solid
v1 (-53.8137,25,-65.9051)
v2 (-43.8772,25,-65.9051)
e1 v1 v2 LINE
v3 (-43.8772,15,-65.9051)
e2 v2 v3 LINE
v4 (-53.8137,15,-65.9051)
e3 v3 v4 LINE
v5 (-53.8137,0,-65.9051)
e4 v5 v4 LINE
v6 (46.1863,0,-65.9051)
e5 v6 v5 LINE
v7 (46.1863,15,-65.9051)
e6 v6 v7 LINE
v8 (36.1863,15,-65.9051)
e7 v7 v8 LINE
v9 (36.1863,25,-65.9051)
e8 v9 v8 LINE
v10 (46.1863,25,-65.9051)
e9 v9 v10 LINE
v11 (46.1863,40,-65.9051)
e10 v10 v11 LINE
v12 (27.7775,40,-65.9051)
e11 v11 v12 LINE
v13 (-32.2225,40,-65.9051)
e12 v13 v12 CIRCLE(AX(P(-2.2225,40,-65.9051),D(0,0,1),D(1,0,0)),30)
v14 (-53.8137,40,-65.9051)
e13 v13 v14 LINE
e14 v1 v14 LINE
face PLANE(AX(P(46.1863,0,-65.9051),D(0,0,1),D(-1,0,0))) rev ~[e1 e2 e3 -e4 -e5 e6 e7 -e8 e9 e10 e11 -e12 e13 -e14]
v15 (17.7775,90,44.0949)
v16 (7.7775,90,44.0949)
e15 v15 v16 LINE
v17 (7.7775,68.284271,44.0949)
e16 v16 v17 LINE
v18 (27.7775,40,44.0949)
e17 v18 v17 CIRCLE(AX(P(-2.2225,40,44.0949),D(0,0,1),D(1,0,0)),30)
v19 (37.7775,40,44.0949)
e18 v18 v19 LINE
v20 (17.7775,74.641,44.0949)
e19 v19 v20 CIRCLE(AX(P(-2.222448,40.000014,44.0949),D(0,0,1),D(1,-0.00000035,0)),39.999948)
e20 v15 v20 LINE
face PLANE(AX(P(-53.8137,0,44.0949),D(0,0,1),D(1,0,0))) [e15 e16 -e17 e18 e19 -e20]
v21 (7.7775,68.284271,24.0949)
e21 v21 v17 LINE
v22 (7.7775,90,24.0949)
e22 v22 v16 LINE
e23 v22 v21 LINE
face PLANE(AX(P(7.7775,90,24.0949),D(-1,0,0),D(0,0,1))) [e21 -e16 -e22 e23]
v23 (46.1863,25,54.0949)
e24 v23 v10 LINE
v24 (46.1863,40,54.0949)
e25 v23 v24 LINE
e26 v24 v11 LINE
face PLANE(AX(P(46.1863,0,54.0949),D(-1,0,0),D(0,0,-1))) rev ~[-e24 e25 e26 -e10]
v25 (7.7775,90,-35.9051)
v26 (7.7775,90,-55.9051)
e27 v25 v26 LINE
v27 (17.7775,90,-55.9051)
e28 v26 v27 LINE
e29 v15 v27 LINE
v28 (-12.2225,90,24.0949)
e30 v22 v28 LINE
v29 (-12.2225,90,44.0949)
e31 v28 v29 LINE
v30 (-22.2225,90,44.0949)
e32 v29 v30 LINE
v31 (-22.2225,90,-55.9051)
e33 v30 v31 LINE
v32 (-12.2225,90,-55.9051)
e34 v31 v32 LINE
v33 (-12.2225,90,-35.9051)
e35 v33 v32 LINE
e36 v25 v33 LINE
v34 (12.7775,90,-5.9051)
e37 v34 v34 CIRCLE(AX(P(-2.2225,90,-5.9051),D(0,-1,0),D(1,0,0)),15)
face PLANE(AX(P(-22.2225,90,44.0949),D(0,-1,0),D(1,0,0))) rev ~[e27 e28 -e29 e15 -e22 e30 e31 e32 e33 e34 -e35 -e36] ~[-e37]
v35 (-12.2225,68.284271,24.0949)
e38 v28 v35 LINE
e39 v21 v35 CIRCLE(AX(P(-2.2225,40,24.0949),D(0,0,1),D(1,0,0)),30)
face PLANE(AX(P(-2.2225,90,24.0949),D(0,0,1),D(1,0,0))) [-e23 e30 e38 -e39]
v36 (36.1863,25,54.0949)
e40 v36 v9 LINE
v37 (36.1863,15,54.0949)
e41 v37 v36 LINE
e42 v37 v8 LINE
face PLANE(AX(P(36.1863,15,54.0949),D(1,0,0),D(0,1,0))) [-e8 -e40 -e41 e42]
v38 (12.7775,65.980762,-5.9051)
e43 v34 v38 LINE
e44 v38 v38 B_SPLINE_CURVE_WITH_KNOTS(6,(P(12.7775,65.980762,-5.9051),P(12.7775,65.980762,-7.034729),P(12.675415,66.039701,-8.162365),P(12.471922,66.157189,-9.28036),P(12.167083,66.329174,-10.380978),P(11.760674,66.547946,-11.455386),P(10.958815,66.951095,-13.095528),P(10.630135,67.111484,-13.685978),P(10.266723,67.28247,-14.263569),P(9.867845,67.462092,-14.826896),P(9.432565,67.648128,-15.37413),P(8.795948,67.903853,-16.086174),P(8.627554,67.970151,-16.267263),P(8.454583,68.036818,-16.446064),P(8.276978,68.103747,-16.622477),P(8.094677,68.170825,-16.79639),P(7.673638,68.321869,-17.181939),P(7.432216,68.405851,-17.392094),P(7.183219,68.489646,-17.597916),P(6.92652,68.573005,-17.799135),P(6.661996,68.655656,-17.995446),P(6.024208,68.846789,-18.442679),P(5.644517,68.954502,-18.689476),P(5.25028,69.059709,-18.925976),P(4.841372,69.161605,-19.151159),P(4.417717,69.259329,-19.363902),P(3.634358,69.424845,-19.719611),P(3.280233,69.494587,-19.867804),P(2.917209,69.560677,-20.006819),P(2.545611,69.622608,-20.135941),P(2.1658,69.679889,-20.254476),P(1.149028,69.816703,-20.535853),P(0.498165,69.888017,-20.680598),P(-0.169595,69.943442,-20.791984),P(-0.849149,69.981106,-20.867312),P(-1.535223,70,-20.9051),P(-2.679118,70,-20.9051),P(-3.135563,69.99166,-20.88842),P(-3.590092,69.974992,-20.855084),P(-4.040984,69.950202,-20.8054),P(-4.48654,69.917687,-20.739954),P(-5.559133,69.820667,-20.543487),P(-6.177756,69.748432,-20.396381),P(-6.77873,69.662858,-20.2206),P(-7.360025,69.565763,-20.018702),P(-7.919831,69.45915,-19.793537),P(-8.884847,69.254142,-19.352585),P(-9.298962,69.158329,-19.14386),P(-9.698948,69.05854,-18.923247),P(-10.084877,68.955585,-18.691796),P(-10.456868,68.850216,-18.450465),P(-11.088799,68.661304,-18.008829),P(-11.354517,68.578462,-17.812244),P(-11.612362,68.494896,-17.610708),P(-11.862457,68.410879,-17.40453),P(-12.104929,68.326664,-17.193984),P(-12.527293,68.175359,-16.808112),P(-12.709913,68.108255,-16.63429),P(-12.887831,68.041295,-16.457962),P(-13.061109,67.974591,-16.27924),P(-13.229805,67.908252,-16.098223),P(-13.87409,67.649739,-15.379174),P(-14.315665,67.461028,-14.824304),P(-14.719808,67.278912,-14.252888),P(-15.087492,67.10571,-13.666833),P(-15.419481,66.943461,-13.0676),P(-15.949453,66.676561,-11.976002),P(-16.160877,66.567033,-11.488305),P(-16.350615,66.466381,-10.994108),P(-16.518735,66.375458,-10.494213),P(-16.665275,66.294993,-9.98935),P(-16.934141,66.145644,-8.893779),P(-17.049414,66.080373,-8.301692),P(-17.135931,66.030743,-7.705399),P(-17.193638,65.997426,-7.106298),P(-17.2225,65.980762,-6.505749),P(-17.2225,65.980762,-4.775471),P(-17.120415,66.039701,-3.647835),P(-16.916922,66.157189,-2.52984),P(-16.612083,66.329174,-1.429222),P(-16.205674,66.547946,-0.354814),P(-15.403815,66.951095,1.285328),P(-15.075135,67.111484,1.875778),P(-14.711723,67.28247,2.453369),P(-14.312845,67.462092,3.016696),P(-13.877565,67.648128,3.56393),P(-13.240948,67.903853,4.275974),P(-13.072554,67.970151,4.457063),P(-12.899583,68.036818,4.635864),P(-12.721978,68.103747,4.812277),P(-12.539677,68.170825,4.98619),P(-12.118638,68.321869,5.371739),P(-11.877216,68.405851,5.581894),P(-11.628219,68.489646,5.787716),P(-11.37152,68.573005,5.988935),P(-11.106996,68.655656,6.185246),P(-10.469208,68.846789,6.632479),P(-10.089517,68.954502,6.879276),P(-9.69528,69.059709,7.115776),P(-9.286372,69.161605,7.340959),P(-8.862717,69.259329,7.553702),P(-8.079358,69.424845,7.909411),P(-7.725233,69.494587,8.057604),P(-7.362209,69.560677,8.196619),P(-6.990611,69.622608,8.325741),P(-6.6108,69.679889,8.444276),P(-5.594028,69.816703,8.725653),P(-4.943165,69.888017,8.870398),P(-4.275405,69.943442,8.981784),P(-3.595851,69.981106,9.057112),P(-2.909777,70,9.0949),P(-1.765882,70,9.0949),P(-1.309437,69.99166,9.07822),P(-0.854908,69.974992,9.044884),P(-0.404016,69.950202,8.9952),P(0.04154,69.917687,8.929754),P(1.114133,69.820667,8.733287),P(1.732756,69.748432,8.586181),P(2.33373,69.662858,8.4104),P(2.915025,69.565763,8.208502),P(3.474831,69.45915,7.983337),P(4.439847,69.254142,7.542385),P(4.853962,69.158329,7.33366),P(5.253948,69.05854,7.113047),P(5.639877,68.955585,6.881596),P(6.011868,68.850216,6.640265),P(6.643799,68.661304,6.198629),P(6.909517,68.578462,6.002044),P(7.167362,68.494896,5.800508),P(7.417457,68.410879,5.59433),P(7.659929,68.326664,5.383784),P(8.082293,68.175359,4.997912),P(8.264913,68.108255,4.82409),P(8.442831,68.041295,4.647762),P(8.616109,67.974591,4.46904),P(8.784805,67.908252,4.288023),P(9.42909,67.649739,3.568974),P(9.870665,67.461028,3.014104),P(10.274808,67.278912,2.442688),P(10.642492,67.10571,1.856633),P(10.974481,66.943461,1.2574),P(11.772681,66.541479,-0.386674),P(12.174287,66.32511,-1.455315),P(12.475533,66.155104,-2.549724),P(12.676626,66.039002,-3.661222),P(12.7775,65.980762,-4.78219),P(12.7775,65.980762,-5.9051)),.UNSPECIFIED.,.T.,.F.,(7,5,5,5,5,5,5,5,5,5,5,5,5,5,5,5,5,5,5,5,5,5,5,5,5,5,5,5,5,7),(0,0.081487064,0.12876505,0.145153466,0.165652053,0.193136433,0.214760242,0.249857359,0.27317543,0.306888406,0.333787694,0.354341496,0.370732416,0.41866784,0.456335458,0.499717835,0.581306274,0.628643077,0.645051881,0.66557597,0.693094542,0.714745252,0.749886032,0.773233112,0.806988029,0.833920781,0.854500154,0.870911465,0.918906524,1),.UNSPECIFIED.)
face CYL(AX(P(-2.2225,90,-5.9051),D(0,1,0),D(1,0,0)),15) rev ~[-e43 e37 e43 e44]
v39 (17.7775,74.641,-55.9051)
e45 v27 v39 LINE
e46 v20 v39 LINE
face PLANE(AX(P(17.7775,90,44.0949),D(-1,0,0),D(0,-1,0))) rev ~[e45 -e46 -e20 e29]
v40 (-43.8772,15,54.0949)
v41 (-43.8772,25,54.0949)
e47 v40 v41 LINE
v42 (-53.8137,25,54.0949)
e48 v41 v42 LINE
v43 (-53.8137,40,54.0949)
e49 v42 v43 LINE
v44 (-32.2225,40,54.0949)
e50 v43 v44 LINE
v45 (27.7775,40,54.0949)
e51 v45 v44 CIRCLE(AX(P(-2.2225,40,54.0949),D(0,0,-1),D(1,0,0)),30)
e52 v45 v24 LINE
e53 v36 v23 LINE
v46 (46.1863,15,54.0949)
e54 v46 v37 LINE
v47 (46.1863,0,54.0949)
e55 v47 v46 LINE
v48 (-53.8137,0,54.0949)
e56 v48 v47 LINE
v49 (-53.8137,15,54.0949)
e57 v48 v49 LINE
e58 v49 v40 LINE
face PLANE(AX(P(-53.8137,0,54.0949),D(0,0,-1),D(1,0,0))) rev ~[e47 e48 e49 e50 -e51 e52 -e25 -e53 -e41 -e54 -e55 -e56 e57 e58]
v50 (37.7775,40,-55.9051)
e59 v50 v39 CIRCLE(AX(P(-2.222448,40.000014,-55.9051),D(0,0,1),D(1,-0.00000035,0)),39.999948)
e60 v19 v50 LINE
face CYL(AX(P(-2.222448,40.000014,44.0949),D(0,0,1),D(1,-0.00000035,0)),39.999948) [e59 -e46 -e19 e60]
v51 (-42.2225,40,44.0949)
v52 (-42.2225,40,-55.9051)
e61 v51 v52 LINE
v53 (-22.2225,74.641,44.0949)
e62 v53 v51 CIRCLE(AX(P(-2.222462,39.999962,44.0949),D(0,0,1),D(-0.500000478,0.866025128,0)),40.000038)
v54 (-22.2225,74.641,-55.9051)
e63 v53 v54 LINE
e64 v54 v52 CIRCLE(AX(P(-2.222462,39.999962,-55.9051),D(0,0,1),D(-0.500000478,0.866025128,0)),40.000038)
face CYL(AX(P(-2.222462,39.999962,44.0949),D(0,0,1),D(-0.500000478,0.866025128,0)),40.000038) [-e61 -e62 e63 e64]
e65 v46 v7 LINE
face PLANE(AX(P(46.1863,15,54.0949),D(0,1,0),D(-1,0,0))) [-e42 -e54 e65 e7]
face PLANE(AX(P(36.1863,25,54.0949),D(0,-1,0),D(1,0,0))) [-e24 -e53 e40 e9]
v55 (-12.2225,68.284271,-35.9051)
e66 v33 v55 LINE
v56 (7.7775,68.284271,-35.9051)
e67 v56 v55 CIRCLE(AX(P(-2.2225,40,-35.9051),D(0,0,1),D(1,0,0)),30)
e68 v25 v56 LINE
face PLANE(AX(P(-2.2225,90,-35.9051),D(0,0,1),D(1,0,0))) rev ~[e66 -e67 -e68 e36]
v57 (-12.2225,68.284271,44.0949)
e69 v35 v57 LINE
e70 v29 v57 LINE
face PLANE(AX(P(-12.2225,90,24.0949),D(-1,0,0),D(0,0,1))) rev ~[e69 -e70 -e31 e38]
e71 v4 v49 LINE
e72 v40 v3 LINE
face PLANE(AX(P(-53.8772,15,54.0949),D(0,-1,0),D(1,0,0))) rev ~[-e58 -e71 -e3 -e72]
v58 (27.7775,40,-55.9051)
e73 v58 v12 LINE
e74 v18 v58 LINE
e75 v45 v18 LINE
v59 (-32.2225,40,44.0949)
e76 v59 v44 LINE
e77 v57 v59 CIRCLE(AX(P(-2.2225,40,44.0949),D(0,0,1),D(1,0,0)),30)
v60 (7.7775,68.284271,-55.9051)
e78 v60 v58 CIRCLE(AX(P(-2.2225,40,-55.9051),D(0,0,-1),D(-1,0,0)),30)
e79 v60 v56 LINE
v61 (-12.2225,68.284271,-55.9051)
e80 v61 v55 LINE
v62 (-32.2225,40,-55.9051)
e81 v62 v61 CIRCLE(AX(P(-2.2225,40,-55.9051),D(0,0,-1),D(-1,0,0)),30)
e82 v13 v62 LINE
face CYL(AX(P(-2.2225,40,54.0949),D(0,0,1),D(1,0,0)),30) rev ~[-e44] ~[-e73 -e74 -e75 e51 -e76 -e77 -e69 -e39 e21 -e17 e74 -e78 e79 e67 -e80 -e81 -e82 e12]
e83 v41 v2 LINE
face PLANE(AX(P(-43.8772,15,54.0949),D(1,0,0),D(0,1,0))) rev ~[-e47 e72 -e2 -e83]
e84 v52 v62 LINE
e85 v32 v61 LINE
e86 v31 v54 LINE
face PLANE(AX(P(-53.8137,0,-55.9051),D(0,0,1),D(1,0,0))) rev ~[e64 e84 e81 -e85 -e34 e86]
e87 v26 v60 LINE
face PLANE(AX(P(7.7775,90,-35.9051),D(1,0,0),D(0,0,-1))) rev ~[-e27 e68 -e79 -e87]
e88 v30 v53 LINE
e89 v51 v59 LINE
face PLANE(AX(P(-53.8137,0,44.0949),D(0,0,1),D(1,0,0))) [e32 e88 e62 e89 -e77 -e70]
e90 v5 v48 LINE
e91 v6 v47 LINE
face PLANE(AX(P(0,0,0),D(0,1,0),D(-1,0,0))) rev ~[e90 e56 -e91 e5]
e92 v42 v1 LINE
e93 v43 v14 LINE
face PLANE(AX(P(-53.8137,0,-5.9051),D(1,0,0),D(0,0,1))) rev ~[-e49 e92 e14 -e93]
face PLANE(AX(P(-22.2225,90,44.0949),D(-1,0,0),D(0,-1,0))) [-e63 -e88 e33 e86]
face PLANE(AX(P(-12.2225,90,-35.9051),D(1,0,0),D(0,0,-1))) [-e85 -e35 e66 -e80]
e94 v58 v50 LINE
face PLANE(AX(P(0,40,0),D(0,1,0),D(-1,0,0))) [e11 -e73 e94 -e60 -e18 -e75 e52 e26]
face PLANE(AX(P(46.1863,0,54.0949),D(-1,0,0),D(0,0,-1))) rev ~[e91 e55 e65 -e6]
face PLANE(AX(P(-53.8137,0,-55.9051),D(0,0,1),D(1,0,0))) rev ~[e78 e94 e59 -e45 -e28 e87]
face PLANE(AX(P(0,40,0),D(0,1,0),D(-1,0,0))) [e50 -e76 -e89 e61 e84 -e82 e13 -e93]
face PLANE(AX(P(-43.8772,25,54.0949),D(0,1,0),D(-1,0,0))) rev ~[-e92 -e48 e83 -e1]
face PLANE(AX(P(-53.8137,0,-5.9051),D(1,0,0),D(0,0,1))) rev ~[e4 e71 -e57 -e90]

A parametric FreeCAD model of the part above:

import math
import FreeCAD as App
import Part
import Sketcher

V = App.Vector

doc = App.newDocument("Part")
body = doc.addObject("PartDesign::Body", "Body")

# Sketch on XZ plane
sketch1 = body.newObject("Sketcher::SketchObject", "Sketch")
sketch1.AttachmentSupport = (doc.getObject("XZ_Plane"), [""])
sketch1.MapMode = "FlatFace"
sketch1.addGeometry([
    Part.LineSegment(V(-53.8137, 54.0949, 0), V(46.1863, 54.0949, 0)),
    Part.LineSegment(V(46.1863, 54.0949, 0), V(46.1863, -65.9051, 0)),
    Part.LineSegment(V(46.1863, -65.9051, 0), V(-53.8137, -65.9051, 0)),
    Part.LineSegment(V(-53.8137, -65.9051, 0), V(-53.8137, 54.0949, 0)),
], False)
sketch1.addConstraint([
    Sketcher.Constraint("Coincident", 0, 2, 1, 1),
    Sketcher.Constraint("Coincident", 1, 2, 2, 1),
    Sketcher.Constraint("Coincident", 2, 2, 3, 1),
    Sketcher.Constraint("Coincident", 3, 2, 0, 1),
    Sketcher.Constraint("Horizontal", 0),
    Sketcher.Constraint("Vertical", 1),
    Sketcher.Constraint("Horizontal", 2),
    Sketcher.Constraint("Vertical", 3),
    Sketcher.Constraint("DistanceX", 0, 1, 0, 2, 100.0),
    Sketcher.Constraint("DistanceY", 1, 2, 1, 1, 120.0),
    Sketcher.Constraint("DistanceY", -1, 1, 0, 2, 54.095),
    Sketcher.Constraint("DistanceX", -1, 1, 0, 2, 46.1863),
])
pad1 = body.newObject("PartDesign::Pad", "Pad")
pad1.Profile = sketch1
pad1.Length = 40
pad1.Reversed = True

# Sketch on XY plane
sketch2 = body.newObject("Sketcher::SketchObject", "Sketch001")
sketch2.AttachmentSupport = (doc.getObject("XY_Plane"), [""])
sketch2.MapMode = "FlatFace"
sketch2.AttachmentOffset = App.Placement(V(0, 0, 54.0949), App.Rotation())
sketch2.addGeometry(Part.Circle(V(-2.2225, 40, 0), V(0, 0, 1), 30), False)
sketch2.addConstraint([
    Sketcher.Constraint("Diameter", 0, 60.0),
    Sketcher.Constraint("DistanceY", -1, 1, 0, 3, 40.0),
    Sketcher.Constraint("DistanceX", 0, 3, -1, 1, 2.2225),
])
pocket1 = body.newObject("PartDesign::Pocket", "Pocket")
pocket1.Profile = sketch2
pocket1.Length = 120

# Sketch on XY plane
sketch3 = body.newObject("Sketcher::SketchObject", "Sketch002")
sketch3.AttachmentSupport = (doc.getObject("XY_Plane"), [""])
sketch3.MapMode = "FlatFace"
sketch3.AttachmentOffset = App.Placement(V(0, 0, 54.0949), App.Rotation())
sketch3.addGeometry([
    Part.LineSegment(V(-53.8772, 25, 0), V(-53.8772, 15, 0)),
    Part.LineSegment(V(-53.8772, 15, 0), V(-43.8772, 15, 0)),
    Part.LineSegment(V(-43.8772, 15, 0), V(-43.8772, 25, 0)),
    Part.LineSegment(V(-43.8772, 25, 0), V(-53.8772, 25, 0)),
], False)
sketch3.addConstraint([
    Sketcher.Constraint("Coincident", 0, 2, 1, 1),
    Sketcher.Constraint("Coincident", 1, 2, 2, 1),
    Sketcher.Constraint("Coincident", 2, 2, 3, 1),
    Sketcher.Constraint("Coincident", 3, 2, 0, 1),
    Sketcher.Constraint("Vertical", 0),
    Sketcher.Constraint("Horizontal", 1),
    Sketcher.Constraint("Vertical", 2),
    Sketcher.Constraint("Horizontal", 3),
    Sketcher.Constraint("Equal", 3, 0),
    Sketcher.Constraint("DistanceX", 1, 1, 1, 2, 10.0),
    Sketcher.Constraint("DistanceY", -1, 1, 0, 2, 15.0),
    Sketcher.Constraint("DistanceX", 0, 2, -1, 1, 53.8772),
])
pocket2 = body.newObject("PartDesign::Pocket", "Pocket001")
pocket2.Profile = sketch3
pocket2.Type = "UpToFirst"

# Sketch on XY plane
sketch4 = body.newObject("Sketcher::SketchObject", "Sketch003")
sketch4.AttachmentSupport = (doc.getObject("XY_Plane"), [""])
sketch4.MapMode = "FlatFace"
sketch4.AttachmentOffset = App.Placement(V(0, 0, 44.0949), App.Rotation())
sketch4.addGeometry([
    Part.LineSegment(V(-42.2225, 40, 0), V(-32.2225, 40, 0)),  # 0
    Part.ArcOfCircle(Part.Circle(V(-2.2225, 40, 0), V(0, 0, 1), 30), math.radians(0), math.radians(180)),  # 1
    Part.LineSegment(V(27.7775, 40, 0), V(37.7775, 40, 0)),  # 2
    Part.ArcOfCircle(Part.Circle(V(-2.2225, 40, 0), V(0, 0, 1), 39.999986), math.radians(0), math.radians(59.999988)),  # 3
    Part.LineSegment(V(17.7775, 74.641, 0), V(17.7775, 90, 0)),  # 4
    Part.LineSegment(V(17.7775, 90, 0), V(-22.2225, 90, 0)),  # 5
    Part.LineSegment(V(-22.2225, 90, 0), V(-22.2225, 74.641, 0)),  # 6
    Part.ArcOfCircle(Part.Circle(V(-2.2225, 40, 0), V(0, 0, 1), 40), math.radians(120.000012), math.radians(180)),  # 7
], False)
sketch4.addConstraint([
    Sketcher.Constraint("Coincident", 0, 2, 1, 2),
    Sketcher.Constraint("Coincident", 1, 1, 2, 1),
    Sketcher.Constraint("Coincident", 2, 2, 3, 1),
    Sketcher.Constraint("Coincident", 3, 2, 4, 1),
    Sketcher.Constraint("Coincident", 4, 2, 5, 1),
    Sketcher.Constraint("Coincident", 5, 2, 6, 1),
    Sketcher.Constraint("Coincident", 6, 2, 7, 1),
    Sketcher.Constraint("Coincident", 7, 2, 0, 1),
    Sketcher.Constraint("Horizontal", 0),
    Sketcher.Constraint("Horizontal", 2),
    Sketcher.Constraint("Vertical", 4),
    Sketcher.Constraint("Horizontal", 5),
    Sketcher.Constraint("Vertical", 6),
    Sketcher.Constraint("Coincident", 3, 3, 1, 3),
    Sketcher.Constraint("Coincident", 7, 3, 1, 3),
    Sketcher.Constraint("Equal", 3, 7),
    Sketcher.Constraint("Horizontal", 7, 3, 0, 2),
    Sketcher.Constraint("Horizontal", 0, 2, 1, 1),
    Sketcher.Constraint("Horizontal", 3, 2, 6, 2),
    Sketcher.Constraint("Radius", 1, 30.0),
    Sketcher.Constraint("Radius", 3, 40.0),
    Sketcher.Constraint("DistanceX", 1, 3, 3, 2, 20.0),
    Sketcher.Constraint("DistanceY", 1, 1, 4, 2, 50.0),
    Sketcher.Constraint("DistanceY", -1, 1, 1, 3, 40.0),
    Sketcher.Constraint("DistanceX", 1, 3, -1, 1, 2.2225),
])
pad2 = body.newObject("PartDesign::Pad", "Pad001")
pad2.Profile = sketch4
pad2.Length = 100
pad2.Reversed = True

# Sketch on XZ plane
sketch5 = body.newObject("Sketcher::SketchObject", "Sketch004")
sketch5.AttachmentSupport = (doc.getObject("XZ_Plane"), [""])
sketch5.MapMode = "FlatFace"
sketch5.AttachmentOffset = App.Placement(V(0, 0, -90), App.Rotation())
sketch5.addGeometry([
    Part.LineSegment(V(7.7775, 44.0949, 0), V(7.7775, 24.0949, 0)),  # 0
    Part.LineSegment(V(7.7775, 24.0949, 0), V(-12.2225, 24.0949, 0)),  # 1
    Part.LineSegment(V(-12.2225, 24.0949, 0), V(-12.2225, 44.0949, 0)),  # 2
    Part.LineSegment(V(-12.2225, 44.0949, 0), V(7.7775, 44.0949, 0)),  # 3
    Part.LineSegment(V(7.7775, -35.9051, 0), V(7.7775, -55.9051, 0)),  # 4
    Part.LineSegment(V(7.7775, -55.9051, 0), V(-12.2225, -55.9051, 0)),  # 5
    Part.LineSegment(V(-12.2225, -55.9051, 0), V(-12.2225, -35.9051, 0)),  # 6
    Part.LineSegment(V(-12.2225, -35.9051, 0), V(7.7775, -35.9051, 0)),  # 7
], False)
sketch5.addConstraint([
    Sketcher.Constraint("Coincident", 0, 2, 1, 1),
    Sketcher.Constraint("Coincident", 1, 2, 2, 1),
    Sketcher.Constraint("Coincident", 2, 2, 3, 1),
    Sketcher.Constraint("Coincident", 3, 2, 0, 1),
    Sketcher.Constraint("Coincident", 4, 2, 5, 1),
    Sketcher.Constraint("Coincident", 5, 2, 6, 1),
    Sketcher.Constraint("Coincident", 6, 2, 7, 1),
    Sketcher.Constraint("Coincident", 7, 2, 4, 1),
    Sketcher.Constraint("Vertical", 0),
    Sketcher.Constraint("Horizontal", 1),
    Sketcher.Constraint("Vertical", 2),
    Sketcher.Constraint("Horizontal", 3),
    Sketcher.Constraint("Vertical", 4),
    Sketcher.Constraint("Horizontal", 5),
    Sketcher.Constraint("Vertical", 6),
    Sketcher.Constraint("Horizontal", 7),
    Sketcher.Constraint("Vertical", 3, 2, 4, 2),
    Sketcher.Constraint("Vertical", 2, 2, 5, 2),
    Sketcher.Constraint("Equal", 7, 0),
    Sketcher.Constraint("Equal", 2, 4),
    Sketcher.Constraint("DistanceX", 1, 2, 1, 1, 20.0),
    Sketcher.Constraint("DistanceY", 4, 2, 0, 2, 80.0),
    Sketcher.Constraint("DistanceY", -1, 1, 0, 2, 24.095),
    Sketcher.Constraint("DistanceX", -1, 1, 0, 2, 7.7775),
])
pocket3 = body.newObject("PartDesign::Pocket", "Pocket002")
pocket3.Profile = sketch5
pocket3.Length = 30
pocket3.Reversed = True

# Sketch on XZ plane
sketch6 = body.newObject("Sketcher::SketchObject", "Sketch005")
sketch6.AttachmentSupport = (doc.getObject("XZ_Plane"), [""])
sketch6.MapMode = "FlatFace"
sketch6.AttachmentOffset = App.Placement(V(0, 0, -90), App.Rotation())
sketch6.addGeometry(Part.Circle(V(-2.2225, -5.9051, 0), V(0, 0, 1), 15), False)
sketch6.addConstraint([
    Sketcher.Constraint("Diameter", 0, 30.0),
    Sketcher.Constraint("DistanceY", 0, 3, -1, 1, 5.905),
    Sketcher.Constraint("DistanceX", 0, 3, -1, 1, 2.2225),
])
pocket4 = body.newObject("PartDesign::Pocket", "Pocket003")
pocket4.Profile = sketch6
pocket4.Length = 25
pocket4.Reversed = True

# Sketch on XY plane
sketch7 = body.newObject("Sketcher::SketchObject", "Sketch006")
sketch7.AttachmentSupport = (doc.getObject("XY_Plane"), [""])
sketch7.MapMode = "FlatFace"
sketch7.AttachmentOffset = App.Placement(V(0, 0, 54.0949), App.Rotation())
sketch7.addGeometry([
    Part.LineSegment(V(36.1863, 15, 0), V(46.1863, 15, 0)),
    Part.LineSegment(V(46.1863, 15, 0), V(46.1863, 25, 0)),
    Part.LineSegment(V(46.1863, 25, 0), V(36.1863, 25, 0)),
    Part.LineSegment(V(36.1863, 25, 0), V(36.1863, 15, 0)),
], False)
sketch7.addConstraint([
    Sketcher.Constraint("Coincident", 0, 2, 1, 1),
    Sketcher.Constraint("Coincident", 1, 2, 2, 1),
    Sketcher.Constraint("Coincident", 2, 2, 3, 1),
    Sketcher.Constraint("Coincident", 3, 2, 0, 1),
    Sketcher.Constraint("Horizontal", 0),
    Sketcher.Constraint("Vertical", 1),
    Sketcher.Constraint("Horizontal", 2),
    Sketcher.Constraint("Vertical", 3),
    Sketcher.Constraint("Equal", 2, 1),
    Sketcher.Constraint("DistanceX", 0, 1, 0, 2, 10.0),
    Sketcher.Constraint("DistanceY", -1, 1, 0, 2, 15.0),
    Sketcher.Constraint("DistanceX", -1, 1, 0, 2, 46.1863),
])
pocket5 = body.newObject("PartDesign::Pocket", "Pocket004")
pocket5.Profile = sketch7
pocket5.Length = 120

doc.recompute()
